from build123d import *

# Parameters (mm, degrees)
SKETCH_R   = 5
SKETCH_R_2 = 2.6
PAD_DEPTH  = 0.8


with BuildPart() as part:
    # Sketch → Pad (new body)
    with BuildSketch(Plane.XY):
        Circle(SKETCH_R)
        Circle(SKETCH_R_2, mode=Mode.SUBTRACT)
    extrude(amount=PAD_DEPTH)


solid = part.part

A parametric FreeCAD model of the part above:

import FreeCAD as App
import Part
import Sketcher
from FreeCAD import Vector
Q = App.Units.Quantity

doc = App.newDocument("Part")
params = doc.addObject("Spreadsheet::Sheet", "Params")
for row, (alias, value) in enumerate([
    ("sketch1_diameter", "10 mm"),
    ("sketch1_diameter2", "5.2 mm"),
    ("pad1_length", "0.8 mm"),
], start=1):
    params.set(f"A{row}", alias)
    params.set(f"B{row}", "=" + value)
    params.setAlias(f"B{row}", alias)

body = doc.addObject("PartDesign::Body", "Body")

# Sketch on XY plane
sketch1 = body.newObject("Sketcher::SketchObject", "Sketch")
sketch1.AttachmentSupport = (doc.getObject("XY_Plane"), [""])
sketch1.MapMode = "FlatFace"
sketch1.addGeometry(Part.Circle(Vector(0, 0, 0), Vector(0, 0, 1), 5), False)
sketch1.addGeometry(Part.Circle(Vector(0, 0, 0), Vector(0, 0, 1), 2.6), False)
sketch1.addConstraint(Sketcher.Constraint("Coincident", 0, 3, -1, 1))
sketch1.addConstraint(Sketcher.Constraint("Coincident", 1, 3, -1, 1))
sketch1.addConstraint(Sketcher.Constraint("Diameter", 0, Q("10 mm")))
sketch1.addConstraint(Sketcher.Constraint("Diameter", 1, Q("5.2 mm")))
sketch1.setExpression("Constraints[2]", "Params.sketch1_diameter")
sketch1.setExpression("Constraints[3]", "Params.sketch1_diameter2")
pad1 = body.newObject("PartDesign::Pad", "Pad")
pad1.Profile = sketch1
pad1.setExpression("Length", "Params.pad1_length")

doc.recompute()
